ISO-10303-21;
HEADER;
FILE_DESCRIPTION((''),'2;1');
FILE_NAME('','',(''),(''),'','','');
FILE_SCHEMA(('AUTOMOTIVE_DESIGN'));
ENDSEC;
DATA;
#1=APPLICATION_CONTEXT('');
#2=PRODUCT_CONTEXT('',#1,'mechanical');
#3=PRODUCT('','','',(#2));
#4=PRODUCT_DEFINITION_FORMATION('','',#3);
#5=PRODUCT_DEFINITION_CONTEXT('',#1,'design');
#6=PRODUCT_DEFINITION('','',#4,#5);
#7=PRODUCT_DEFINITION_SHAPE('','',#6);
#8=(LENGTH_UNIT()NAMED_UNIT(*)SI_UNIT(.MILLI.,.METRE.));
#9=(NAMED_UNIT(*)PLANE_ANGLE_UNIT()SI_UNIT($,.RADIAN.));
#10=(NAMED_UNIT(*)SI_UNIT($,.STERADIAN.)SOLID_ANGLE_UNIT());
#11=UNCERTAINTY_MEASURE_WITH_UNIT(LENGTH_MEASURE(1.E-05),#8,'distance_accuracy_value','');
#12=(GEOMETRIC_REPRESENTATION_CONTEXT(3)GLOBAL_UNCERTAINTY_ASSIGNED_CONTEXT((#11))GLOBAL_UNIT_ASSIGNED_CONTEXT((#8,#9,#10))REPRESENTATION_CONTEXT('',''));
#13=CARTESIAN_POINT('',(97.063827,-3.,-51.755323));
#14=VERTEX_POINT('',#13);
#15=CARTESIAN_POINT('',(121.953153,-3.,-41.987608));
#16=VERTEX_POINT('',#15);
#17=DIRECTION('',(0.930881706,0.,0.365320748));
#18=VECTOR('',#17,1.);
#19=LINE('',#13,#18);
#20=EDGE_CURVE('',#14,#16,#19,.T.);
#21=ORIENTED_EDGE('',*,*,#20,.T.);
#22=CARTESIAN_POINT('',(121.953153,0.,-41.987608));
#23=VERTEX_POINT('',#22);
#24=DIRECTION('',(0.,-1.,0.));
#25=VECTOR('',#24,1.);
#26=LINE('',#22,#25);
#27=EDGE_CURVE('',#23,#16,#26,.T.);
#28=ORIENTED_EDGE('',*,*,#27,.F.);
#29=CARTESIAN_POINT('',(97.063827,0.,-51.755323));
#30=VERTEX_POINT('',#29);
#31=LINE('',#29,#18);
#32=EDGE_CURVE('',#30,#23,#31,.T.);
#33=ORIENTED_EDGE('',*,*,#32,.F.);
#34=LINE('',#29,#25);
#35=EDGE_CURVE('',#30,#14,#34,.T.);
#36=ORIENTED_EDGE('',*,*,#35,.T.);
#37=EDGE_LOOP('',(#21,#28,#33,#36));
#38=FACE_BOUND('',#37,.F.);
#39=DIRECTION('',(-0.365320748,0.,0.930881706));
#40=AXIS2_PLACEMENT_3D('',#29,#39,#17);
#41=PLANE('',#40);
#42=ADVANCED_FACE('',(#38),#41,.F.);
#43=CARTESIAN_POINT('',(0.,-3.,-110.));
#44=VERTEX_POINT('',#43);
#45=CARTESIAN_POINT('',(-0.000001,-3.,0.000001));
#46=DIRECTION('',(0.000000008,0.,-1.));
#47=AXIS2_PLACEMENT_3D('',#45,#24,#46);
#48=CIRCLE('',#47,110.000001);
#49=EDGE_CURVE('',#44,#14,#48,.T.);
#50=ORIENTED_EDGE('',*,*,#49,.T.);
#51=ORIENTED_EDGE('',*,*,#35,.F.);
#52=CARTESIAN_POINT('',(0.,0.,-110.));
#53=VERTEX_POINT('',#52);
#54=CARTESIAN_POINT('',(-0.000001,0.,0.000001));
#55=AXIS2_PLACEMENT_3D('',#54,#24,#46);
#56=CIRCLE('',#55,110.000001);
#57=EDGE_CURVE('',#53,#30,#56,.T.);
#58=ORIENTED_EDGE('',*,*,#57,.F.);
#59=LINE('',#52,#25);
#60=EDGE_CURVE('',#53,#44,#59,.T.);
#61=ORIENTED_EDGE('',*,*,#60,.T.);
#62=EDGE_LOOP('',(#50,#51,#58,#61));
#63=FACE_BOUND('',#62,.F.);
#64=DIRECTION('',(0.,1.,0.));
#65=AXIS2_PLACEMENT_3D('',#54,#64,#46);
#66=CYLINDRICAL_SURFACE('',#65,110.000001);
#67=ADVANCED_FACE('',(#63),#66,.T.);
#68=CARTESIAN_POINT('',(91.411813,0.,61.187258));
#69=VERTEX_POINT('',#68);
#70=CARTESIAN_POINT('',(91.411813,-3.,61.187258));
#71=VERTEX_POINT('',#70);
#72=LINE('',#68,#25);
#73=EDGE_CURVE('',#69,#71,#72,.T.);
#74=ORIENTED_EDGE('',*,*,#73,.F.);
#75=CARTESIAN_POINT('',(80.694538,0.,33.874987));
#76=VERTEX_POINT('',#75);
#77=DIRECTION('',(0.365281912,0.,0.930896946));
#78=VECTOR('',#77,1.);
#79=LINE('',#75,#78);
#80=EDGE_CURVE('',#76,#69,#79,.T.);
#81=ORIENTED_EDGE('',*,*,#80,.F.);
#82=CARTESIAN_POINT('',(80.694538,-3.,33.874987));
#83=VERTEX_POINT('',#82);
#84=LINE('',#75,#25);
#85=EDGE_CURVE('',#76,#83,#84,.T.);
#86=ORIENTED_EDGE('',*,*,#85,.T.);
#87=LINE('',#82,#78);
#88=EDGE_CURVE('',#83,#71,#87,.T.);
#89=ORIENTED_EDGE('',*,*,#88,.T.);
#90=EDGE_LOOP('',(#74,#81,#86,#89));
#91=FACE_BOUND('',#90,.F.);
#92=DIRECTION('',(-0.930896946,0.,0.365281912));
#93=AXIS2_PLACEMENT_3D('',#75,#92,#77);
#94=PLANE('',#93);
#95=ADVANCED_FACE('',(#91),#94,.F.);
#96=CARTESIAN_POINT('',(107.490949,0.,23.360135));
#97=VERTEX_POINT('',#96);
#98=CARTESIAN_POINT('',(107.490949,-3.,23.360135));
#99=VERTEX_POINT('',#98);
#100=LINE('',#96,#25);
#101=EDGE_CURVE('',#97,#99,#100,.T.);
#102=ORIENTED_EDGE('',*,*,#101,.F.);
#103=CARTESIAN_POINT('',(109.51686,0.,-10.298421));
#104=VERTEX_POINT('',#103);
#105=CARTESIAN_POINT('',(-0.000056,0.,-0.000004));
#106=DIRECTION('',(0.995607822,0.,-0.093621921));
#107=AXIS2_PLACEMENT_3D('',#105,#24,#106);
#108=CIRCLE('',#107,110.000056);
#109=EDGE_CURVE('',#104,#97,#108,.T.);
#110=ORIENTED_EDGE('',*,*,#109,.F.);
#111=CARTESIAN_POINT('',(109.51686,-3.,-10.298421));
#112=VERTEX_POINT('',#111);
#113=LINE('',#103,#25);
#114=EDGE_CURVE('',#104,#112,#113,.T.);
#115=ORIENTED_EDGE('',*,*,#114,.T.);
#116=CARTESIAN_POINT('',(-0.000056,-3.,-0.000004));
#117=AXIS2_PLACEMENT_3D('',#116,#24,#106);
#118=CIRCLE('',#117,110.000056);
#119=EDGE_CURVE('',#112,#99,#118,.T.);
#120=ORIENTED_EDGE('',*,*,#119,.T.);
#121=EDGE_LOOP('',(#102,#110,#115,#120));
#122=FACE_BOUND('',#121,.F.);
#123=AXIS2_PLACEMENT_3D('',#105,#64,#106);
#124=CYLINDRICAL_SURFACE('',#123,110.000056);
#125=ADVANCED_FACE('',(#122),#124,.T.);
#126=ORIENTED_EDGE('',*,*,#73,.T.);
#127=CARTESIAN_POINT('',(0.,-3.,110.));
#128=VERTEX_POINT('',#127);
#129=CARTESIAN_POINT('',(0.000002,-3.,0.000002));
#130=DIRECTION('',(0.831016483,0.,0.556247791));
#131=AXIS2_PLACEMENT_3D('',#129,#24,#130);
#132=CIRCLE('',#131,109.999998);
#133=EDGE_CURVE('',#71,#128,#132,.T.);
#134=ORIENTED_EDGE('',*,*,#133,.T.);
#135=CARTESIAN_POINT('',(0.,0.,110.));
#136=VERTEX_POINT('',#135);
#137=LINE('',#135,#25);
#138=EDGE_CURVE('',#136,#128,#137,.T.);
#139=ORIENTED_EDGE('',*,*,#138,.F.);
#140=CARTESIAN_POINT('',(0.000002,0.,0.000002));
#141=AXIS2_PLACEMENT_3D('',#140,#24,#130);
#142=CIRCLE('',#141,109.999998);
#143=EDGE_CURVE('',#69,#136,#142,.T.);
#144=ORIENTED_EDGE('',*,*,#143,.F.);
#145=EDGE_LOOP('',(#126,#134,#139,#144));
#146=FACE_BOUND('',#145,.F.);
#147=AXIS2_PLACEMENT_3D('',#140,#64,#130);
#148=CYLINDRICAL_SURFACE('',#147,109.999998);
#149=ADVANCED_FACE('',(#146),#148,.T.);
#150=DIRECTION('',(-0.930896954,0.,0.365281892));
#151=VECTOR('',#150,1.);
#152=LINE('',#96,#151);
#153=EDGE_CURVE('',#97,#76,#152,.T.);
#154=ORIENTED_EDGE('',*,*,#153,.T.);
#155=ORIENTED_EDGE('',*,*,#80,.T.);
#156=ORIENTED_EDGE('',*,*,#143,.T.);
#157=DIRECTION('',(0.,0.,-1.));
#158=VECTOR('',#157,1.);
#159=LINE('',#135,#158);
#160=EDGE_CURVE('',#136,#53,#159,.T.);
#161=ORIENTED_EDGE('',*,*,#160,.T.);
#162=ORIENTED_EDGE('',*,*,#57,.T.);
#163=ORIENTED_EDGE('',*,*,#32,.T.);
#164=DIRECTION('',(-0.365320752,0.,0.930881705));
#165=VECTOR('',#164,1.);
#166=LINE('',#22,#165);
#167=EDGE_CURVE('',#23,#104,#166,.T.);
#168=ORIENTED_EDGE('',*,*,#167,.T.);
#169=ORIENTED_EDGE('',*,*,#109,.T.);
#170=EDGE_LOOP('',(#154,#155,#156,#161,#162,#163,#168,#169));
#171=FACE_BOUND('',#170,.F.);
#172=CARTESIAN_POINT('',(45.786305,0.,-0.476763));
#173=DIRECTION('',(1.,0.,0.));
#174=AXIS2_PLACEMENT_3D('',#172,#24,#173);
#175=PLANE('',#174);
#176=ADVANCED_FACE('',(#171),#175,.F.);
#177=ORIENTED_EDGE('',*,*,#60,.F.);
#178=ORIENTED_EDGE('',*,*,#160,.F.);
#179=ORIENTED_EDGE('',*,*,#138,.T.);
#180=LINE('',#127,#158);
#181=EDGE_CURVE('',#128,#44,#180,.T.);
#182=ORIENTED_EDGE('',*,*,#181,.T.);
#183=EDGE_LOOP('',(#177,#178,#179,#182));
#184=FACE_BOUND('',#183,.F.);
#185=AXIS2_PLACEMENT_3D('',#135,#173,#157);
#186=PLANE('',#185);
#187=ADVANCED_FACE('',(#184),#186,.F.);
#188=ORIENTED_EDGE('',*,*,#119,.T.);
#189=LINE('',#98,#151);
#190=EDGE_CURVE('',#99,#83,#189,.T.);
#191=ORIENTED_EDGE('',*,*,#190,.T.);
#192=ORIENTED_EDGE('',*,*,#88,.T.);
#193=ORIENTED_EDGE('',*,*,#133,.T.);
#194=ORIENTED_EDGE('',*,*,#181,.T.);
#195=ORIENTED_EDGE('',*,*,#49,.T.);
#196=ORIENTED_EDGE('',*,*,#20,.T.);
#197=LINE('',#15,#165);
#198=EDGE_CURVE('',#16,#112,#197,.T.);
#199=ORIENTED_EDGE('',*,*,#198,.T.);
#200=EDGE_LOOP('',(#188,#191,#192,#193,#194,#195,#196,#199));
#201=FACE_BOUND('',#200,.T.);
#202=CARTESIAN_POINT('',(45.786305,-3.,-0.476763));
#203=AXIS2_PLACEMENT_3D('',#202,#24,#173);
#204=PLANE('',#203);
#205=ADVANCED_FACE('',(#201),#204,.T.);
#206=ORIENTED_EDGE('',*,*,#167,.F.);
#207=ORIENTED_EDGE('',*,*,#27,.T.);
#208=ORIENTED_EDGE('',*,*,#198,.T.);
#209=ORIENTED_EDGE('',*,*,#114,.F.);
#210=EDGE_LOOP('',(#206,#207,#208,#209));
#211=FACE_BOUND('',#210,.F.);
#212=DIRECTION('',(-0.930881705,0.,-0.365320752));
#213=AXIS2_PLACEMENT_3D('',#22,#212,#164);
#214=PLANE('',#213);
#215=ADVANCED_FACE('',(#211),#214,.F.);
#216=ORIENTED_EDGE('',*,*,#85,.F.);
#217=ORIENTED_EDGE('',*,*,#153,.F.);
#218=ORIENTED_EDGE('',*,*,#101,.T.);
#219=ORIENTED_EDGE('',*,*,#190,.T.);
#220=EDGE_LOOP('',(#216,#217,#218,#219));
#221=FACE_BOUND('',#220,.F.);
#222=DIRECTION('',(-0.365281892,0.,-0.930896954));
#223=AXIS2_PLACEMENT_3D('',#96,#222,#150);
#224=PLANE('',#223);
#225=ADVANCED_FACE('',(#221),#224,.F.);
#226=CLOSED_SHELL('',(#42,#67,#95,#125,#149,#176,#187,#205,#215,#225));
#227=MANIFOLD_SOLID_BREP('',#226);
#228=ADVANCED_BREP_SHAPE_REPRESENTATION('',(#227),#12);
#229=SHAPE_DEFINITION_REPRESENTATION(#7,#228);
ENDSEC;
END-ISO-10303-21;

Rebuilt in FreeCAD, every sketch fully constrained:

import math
import FreeCAD as App
import Part
import Sketcher
from FreeCAD import Vector
Q = App.Units.Quantity

doc = App.newDocument("Part")
body = doc.addObject("PartDesign::Body", "Body")

sketch1 = doc.addObject("Sketcher::SketchObject", "Sketch")
body.addObject(sketch1)
sketch1.AttachmentSupport = (doc.XZ_Plane, [""])
sketch1.MapMode = "FlatFace"
sketch1.addGeometry([
    Part.LineSegment(Vector(0, 110, 0), Vector(0, -110, 0)),
    Part.ArcOfCircle(Part.Circle(Vector(-0.000001, 0.000001, 0), Vector(0, 0, 1), 110.000001), math.radians(-90), math.radians(-28.066949)),
    Part.LineSegment(Vector(97.063827, -51.755323, 0), Vector(121.953153, -41.987608, 0)),
    Part.LineSegment(Vector(121.953153, -41.987608, 0), Vector(109.51686, -10.298421, 0)),
    Part.ArcOfCircle(Part.Circle(Vector(-0.000056, -0.000004, 0), Vector(0, 0, 1), 110.000056), math.radians(-5.372008), math.radians(12.260971)),
    Part.LineSegment(Vector(107.490949, 23.360135, 0), Vector(80.694538, 33.874987, 0)),
    Part.LineSegment(Vector(80.694538, 33.874987, 0), Vector(91.411813, 61.187258, 0)),
    Part.ArcOfCircle(Part.Circle(Vector(0.000002, 0.000002, 0), Vector(0, 0, 1), 109.999998), math.radians(33.796703), math.radians(90.000001)),
], False)
sketch1.addConstraint([
    Sketcher.Constraint("Coincident", 0, 2, 1, 1),
    Sketcher.Constraint("Coincident", 1, 2, 2, 1),
    Sketcher.Constraint("Coincident", 2, 2, 3, 1),
    Sketcher.Constraint("Coincident", 3, 2, 4, 1),
    Sketcher.Constraint("Coincident", 4, 2, 5, 1),
    Sketcher.Constraint("Coincident", 5, 2, 6, 1),
    Sketcher.Constraint("Coincident", 6, 2, 7, 1),
    Sketcher.Constraint("Coincident", 7, 2, 0, 1),
    Sketcher.Constraint("Vertical", 0),
    Sketcher.Constraint("Coincident", 1, 3, -1, 1),
    Sketcher.Constraint("Coincident", 7, 3, -1, 1),
    Sketcher.Constraint("Symmetric", 0, 2, 7, 2, -1, 1),
    Sketcher.Constraint("Perpendicular", 2, 3),
    Sketcher.Constraint("Perpendicular", 5, 6),
    Sketcher.Constraint("Radius", 1, Q("110.000001 mm")),
    Sketcher.Constraint("Radius", 4, Q("110.000056 mm")),
    Sketcher.Constraint("DistanceY", 1, 2, 3, 2, Q("41.456902 mm")),
    Sketcher.Constraint("Distance", 3, Q("34.04212 mm")),
    Sketcher.Constraint("DistanceY", 2, 2, -1, 1, Q("41.987608 mm")),
    Sketcher.Constraint("DistanceX", -1, 1, 3, 2, Q("109.51686 mm")),
    Sketcher.Constraint("DistanceX", -1, 1, 4, 2, Q("107.490949 mm")),
    Sketcher.Constraint("DistanceY", 1, 2, 4, 3, Q("51.755319 mm")),
    Sketcher.Constraint("DistanceX", 5, 2, 4, 2, Q("26.796411 mm")),
    Sketcher.Constraint("DistanceY", 1, 2, 5, 2, Q("85.63031 mm")),
])
pad1 = doc.addObject("PartDesign::Pad", "Pad")
body.addObject(pad1)
pad1.Profile = sketch1
pad1.Length = 3

doc.recompute()
